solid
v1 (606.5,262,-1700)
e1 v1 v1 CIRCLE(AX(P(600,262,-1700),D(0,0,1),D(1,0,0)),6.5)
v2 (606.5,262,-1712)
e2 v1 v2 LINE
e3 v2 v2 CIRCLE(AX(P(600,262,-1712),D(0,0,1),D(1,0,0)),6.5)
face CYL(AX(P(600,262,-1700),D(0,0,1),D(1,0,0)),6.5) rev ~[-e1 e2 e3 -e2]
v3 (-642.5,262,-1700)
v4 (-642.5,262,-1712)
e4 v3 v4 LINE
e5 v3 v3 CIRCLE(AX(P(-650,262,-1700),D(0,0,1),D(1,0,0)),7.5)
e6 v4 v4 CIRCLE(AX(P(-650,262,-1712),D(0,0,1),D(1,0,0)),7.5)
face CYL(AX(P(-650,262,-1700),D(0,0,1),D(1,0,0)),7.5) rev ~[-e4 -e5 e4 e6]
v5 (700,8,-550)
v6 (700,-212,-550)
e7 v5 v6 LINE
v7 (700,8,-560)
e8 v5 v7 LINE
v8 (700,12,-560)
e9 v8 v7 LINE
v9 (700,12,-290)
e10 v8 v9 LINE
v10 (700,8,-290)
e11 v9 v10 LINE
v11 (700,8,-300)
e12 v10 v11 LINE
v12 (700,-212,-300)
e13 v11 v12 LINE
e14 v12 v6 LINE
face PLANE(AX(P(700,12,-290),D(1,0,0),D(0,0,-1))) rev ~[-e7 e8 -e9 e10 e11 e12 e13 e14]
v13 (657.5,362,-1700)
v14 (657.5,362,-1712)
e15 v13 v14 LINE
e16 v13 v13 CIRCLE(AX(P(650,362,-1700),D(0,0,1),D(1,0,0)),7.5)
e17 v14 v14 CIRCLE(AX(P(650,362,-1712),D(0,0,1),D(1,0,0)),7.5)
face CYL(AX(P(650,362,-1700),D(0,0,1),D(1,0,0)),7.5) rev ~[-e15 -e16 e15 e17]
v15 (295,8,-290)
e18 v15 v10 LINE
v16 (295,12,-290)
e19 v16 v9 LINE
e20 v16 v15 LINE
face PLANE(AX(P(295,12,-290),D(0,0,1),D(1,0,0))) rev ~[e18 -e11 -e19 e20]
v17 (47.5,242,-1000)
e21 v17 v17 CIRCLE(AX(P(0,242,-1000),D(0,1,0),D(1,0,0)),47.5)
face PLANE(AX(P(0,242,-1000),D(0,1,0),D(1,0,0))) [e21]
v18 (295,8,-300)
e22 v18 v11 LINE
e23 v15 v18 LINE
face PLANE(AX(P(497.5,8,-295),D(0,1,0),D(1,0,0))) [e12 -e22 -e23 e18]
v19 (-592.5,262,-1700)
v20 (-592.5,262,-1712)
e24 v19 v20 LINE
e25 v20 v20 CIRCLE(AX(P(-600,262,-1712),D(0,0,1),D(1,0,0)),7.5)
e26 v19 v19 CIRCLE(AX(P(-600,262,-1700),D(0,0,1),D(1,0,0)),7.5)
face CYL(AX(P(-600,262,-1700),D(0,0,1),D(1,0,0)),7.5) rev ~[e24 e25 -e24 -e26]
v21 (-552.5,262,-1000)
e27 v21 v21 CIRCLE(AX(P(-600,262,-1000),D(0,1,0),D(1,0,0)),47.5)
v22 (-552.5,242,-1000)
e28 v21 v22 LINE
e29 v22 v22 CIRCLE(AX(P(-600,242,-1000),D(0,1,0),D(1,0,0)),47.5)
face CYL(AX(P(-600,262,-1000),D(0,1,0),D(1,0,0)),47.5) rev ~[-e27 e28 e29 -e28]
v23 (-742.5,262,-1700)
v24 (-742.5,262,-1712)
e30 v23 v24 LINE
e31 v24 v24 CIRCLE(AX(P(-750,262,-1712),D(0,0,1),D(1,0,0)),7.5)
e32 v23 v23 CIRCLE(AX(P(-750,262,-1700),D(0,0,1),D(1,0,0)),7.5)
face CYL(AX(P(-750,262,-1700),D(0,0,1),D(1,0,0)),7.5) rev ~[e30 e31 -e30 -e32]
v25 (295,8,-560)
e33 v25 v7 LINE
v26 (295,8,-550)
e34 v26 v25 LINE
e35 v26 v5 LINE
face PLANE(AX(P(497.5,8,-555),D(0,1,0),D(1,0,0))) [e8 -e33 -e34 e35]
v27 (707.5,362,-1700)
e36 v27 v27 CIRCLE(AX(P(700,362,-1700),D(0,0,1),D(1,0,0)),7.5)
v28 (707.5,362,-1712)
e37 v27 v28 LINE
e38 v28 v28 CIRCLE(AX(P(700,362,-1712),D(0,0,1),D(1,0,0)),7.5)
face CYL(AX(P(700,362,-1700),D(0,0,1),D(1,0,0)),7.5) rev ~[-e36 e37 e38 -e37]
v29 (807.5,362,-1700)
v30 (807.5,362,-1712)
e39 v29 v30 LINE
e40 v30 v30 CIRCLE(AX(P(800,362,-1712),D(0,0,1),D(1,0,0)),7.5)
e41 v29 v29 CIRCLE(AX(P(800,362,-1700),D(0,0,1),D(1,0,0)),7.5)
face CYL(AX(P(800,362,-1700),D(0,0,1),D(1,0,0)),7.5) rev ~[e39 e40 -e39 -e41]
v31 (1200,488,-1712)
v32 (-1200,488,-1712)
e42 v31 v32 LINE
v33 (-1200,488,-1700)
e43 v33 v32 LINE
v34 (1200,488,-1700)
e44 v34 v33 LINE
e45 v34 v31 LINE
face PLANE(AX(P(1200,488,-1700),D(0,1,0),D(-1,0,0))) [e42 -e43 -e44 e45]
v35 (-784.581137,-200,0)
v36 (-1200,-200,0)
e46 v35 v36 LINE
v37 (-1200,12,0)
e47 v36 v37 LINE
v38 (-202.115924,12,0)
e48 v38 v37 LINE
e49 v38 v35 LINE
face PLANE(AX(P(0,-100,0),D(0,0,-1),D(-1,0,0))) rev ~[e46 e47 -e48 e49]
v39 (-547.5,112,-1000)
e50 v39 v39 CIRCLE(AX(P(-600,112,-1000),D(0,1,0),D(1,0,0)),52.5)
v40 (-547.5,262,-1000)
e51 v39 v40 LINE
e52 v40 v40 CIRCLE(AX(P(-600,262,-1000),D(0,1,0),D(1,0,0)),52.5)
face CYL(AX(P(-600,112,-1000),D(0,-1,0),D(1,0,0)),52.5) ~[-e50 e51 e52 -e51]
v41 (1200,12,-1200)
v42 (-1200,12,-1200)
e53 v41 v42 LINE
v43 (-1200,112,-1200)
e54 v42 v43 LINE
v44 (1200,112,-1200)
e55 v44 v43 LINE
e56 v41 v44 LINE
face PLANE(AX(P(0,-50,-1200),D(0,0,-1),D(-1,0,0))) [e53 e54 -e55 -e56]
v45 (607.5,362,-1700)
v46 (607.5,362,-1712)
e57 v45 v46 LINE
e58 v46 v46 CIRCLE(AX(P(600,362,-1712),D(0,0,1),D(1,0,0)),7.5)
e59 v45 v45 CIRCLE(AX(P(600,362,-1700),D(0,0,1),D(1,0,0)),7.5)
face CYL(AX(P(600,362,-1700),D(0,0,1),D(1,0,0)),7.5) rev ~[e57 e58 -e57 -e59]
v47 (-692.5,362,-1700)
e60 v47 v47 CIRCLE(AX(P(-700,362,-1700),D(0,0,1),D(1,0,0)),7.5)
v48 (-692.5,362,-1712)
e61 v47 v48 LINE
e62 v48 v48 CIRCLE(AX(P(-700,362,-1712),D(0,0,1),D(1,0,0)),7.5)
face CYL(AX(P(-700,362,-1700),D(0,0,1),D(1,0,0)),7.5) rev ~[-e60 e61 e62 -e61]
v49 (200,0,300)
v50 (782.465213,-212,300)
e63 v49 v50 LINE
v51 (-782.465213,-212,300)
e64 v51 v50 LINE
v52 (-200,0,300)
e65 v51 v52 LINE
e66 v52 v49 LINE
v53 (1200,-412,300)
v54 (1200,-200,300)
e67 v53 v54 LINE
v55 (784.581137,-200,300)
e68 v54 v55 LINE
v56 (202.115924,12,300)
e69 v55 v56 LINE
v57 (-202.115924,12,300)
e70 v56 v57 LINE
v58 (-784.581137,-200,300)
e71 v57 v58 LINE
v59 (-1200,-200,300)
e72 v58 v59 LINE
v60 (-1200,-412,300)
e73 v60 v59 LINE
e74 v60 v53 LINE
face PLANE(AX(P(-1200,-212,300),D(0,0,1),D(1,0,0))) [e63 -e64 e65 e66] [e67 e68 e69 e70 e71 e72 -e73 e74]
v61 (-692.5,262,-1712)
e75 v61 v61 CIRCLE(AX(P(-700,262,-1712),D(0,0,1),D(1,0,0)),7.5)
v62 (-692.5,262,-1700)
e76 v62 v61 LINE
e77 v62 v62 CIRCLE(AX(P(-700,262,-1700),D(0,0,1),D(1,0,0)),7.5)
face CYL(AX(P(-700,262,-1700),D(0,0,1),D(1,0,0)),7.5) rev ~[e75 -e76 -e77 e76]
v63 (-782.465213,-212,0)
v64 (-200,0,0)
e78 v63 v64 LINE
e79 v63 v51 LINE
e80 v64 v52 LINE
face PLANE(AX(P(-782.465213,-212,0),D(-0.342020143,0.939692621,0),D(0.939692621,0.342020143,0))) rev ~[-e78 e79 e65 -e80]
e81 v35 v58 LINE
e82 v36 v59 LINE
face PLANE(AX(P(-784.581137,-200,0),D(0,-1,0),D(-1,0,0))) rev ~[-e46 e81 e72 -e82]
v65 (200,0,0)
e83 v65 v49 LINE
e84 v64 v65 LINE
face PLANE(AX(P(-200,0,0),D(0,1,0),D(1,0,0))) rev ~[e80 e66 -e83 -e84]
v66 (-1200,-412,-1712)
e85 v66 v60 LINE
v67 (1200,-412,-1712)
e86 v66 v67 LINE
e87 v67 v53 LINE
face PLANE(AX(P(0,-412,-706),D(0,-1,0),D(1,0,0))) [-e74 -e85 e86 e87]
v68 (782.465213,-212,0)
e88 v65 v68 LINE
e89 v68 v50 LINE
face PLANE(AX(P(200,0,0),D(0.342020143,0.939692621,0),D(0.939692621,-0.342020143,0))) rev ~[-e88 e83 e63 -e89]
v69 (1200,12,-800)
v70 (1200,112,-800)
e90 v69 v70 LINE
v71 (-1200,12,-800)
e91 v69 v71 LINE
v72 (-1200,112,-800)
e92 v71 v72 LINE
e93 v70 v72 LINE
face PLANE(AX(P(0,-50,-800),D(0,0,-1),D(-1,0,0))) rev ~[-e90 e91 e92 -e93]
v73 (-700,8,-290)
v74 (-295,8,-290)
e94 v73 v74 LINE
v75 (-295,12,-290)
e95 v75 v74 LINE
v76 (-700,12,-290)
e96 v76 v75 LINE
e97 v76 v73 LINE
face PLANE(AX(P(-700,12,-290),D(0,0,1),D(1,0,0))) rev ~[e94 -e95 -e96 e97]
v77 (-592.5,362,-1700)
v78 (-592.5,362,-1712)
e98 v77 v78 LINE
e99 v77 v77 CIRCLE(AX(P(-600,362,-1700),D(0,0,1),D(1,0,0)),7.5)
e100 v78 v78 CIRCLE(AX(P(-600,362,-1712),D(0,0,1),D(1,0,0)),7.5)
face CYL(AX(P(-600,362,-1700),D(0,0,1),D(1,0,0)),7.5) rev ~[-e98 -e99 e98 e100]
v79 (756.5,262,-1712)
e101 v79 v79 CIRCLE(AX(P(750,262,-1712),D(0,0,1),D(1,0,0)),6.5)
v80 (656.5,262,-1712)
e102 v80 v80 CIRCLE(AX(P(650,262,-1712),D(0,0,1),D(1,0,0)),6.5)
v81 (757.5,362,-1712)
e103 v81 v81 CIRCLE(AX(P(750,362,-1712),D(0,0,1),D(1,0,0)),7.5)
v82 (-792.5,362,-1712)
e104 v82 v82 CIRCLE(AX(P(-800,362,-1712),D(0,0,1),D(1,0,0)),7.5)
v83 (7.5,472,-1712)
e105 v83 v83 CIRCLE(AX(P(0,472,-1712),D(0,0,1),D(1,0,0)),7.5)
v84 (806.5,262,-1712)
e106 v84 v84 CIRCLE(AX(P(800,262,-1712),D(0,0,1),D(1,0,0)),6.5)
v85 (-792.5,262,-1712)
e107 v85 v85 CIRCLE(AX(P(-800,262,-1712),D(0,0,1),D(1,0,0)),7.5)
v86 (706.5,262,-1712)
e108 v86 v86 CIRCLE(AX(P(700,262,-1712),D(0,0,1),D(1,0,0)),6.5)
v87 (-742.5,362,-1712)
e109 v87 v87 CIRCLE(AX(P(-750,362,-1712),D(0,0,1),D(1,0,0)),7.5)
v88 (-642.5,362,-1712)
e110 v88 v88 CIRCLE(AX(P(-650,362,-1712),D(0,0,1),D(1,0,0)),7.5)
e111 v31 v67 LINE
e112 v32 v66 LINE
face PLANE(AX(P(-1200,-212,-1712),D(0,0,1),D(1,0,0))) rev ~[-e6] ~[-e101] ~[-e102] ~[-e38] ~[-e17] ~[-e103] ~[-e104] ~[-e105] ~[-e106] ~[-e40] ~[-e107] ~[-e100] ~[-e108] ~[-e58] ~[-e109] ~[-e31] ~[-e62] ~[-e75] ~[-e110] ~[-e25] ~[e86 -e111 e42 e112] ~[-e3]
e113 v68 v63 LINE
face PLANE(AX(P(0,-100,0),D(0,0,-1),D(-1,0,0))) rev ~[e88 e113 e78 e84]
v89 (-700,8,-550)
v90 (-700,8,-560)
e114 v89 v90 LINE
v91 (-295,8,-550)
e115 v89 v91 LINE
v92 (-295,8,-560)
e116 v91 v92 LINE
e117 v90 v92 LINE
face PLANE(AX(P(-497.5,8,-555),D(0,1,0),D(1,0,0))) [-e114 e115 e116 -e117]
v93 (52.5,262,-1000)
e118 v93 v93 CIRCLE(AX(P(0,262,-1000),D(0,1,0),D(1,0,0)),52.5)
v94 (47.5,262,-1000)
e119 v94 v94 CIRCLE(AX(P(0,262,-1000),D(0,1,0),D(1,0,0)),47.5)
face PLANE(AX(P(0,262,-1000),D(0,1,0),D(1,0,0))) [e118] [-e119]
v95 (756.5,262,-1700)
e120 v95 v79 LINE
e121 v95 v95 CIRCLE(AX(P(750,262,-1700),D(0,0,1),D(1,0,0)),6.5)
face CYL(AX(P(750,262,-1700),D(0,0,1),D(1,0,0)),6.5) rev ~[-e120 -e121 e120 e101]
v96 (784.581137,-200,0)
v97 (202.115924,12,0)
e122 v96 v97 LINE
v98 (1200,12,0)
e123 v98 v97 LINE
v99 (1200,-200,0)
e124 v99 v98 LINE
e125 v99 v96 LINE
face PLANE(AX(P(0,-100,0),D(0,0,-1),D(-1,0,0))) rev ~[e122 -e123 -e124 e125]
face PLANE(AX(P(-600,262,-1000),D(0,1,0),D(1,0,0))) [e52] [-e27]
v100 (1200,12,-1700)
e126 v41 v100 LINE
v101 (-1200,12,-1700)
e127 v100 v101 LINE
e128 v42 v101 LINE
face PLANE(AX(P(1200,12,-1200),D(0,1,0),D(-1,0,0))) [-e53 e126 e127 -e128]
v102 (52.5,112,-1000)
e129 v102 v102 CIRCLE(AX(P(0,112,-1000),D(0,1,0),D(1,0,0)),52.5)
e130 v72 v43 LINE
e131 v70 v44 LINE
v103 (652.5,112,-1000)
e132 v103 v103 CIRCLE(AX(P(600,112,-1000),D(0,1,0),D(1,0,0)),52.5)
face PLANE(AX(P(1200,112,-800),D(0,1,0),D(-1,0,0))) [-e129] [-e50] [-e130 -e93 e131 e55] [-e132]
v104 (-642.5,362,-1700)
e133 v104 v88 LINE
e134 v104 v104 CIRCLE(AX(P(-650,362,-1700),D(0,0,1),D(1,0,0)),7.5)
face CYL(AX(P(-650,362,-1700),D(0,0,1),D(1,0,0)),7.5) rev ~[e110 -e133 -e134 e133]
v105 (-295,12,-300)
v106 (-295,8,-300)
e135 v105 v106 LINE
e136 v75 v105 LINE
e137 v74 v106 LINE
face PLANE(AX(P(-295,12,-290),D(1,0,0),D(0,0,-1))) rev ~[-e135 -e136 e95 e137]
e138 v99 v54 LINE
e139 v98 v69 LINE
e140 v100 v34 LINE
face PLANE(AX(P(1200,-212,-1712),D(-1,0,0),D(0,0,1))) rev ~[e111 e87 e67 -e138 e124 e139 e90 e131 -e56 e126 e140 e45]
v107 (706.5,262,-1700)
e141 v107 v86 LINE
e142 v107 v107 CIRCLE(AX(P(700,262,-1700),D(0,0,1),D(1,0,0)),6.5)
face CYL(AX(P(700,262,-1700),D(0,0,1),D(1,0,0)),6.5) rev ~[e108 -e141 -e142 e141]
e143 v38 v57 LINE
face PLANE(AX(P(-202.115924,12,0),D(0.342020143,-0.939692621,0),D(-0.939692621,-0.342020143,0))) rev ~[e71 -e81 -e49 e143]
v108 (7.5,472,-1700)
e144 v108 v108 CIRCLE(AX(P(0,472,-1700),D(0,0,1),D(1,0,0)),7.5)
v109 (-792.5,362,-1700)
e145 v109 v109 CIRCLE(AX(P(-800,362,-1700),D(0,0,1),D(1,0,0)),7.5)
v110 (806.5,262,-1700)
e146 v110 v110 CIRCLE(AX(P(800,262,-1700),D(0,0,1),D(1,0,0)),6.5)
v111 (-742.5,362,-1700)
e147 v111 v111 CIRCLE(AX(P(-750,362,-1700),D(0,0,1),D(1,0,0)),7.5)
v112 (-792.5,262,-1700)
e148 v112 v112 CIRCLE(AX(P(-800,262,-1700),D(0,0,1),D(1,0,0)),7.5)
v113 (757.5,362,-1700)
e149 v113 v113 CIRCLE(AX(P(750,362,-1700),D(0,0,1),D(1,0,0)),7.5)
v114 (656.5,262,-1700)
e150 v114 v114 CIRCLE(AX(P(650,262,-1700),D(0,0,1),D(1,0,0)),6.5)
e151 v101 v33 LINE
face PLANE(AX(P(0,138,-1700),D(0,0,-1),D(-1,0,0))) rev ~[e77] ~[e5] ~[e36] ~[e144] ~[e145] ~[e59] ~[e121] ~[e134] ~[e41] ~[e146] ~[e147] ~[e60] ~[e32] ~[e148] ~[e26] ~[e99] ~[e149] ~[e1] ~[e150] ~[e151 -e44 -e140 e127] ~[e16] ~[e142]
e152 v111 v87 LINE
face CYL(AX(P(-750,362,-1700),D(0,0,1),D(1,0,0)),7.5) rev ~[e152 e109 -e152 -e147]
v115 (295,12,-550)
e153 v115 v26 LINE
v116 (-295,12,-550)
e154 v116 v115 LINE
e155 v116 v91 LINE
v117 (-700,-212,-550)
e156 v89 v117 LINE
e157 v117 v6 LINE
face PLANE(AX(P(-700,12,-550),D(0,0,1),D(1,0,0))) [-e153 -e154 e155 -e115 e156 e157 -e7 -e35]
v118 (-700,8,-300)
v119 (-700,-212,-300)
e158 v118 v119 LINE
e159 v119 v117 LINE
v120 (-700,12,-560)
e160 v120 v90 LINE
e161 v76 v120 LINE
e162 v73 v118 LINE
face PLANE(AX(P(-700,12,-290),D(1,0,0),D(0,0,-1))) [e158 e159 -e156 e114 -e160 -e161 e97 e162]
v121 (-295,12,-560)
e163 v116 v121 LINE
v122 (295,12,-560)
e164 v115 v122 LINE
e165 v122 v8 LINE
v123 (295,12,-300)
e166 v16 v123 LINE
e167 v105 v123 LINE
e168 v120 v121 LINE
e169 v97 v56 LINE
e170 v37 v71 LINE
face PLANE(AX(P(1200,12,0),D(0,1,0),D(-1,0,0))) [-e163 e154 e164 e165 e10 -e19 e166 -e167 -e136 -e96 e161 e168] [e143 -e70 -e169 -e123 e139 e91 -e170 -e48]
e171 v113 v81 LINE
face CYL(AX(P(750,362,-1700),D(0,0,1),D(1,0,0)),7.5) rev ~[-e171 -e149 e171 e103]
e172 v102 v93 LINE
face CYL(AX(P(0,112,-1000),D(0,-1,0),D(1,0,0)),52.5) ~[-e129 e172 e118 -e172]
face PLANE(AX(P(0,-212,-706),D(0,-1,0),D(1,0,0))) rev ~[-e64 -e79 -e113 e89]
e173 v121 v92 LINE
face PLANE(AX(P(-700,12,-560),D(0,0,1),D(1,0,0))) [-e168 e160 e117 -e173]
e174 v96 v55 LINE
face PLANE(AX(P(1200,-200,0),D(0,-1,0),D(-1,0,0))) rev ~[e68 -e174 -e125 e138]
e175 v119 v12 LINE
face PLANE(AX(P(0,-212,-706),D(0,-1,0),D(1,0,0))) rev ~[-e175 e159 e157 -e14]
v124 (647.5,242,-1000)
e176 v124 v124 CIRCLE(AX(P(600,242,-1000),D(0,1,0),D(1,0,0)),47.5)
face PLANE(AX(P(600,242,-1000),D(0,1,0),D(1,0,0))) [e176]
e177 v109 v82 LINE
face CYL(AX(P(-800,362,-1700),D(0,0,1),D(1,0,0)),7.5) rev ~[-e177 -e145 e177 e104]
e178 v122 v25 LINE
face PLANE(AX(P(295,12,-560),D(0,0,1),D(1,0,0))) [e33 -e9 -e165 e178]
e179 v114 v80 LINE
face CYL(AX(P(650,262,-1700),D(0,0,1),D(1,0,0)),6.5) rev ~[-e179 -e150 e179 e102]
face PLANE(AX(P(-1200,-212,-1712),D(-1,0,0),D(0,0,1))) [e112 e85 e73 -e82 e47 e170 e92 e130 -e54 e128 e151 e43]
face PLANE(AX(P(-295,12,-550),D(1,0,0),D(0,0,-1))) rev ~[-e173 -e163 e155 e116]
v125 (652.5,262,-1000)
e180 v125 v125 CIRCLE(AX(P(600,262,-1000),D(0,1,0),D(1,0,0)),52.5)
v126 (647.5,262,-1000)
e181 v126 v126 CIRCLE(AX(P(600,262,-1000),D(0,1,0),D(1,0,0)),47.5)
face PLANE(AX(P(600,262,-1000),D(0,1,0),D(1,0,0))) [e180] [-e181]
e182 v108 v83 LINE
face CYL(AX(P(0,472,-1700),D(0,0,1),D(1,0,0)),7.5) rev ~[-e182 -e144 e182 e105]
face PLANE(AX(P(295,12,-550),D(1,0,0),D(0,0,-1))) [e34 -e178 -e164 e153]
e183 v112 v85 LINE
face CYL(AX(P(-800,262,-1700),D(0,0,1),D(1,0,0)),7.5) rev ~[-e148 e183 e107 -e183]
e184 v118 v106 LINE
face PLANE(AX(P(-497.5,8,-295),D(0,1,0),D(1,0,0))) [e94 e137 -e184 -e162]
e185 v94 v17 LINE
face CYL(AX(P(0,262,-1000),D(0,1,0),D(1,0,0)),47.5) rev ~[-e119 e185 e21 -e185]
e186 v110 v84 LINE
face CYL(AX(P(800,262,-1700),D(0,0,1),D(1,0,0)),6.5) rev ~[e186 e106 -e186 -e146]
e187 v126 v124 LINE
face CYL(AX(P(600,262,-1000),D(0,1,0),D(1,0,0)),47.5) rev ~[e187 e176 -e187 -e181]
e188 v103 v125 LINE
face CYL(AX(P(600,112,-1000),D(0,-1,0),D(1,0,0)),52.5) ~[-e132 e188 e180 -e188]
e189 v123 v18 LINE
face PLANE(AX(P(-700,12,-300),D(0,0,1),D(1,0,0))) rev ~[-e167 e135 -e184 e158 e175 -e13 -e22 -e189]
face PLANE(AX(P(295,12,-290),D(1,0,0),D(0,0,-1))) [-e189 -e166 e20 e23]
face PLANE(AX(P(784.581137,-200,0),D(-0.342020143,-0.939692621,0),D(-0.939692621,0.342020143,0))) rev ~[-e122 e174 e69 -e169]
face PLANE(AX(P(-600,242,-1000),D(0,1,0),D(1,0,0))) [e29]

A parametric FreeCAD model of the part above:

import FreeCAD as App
import Part
import Sketcher
Q = App.Units.Quantity

doc = App.newDocument("Part")
body = doc.addObject("PartDesign::Body", "Body")

sketch1 = body.newObject("Sketcher::SketchObject", "Sketch")
sketch1.AttachmentSupport = (doc.getObject("XY_Plane"), [""])
sketch1.MapMode = "FlatFace"
sketch1.addGeometry(Part.LineSegment(App.Vector(-200, 0, 0), App.Vector(200, 0, 0)), False)
sketch1.addGeometry(Part.LineSegment(App.Vector(200, 0, 0), App.Vector(782, -212, 0)), False)
sketch1.addGeometry(Part.LineSegment(App.Vector(782, -212, 0), App.Vector(1200, -212, 0)), False)
sketch1.addGeometry(Part.LineSegment(App.Vector(1200, -212, 0), App.Vector(1200, -200, 0)), False)
sketch1.addGeometry(Part.LineSegment(App.Vector(1200, -200, 0), App.Vector(785, -200, 0)), False)
sketch1.addGeometry(Part.LineSegment(App.Vector(785, -200, 0), App.Vector(202, 12, 0)), False)
sketch1.addGeometry(Part.LineSegment(App.Vector(202, 12, 0), App.Vector(-202, 12, 0)), False)
sketch1.addGeometry(Part.LineSegment(App.Vector(-202, 12, 0), App.Vector(-785, -200, 0)), False)
sketch1.addGeometry(Part.LineSegment(App.Vector(-785, -200, 0), App.Vector(-1200, -200, 0)), False)
sketch1.addGeometry(Part.LineSegment(App.Vector(-1200, -200, 0), App.Vector(-1200, -212, 0)), False)
sketch1.addGeometry(Part.LineSegment(App.Vector(-1200, -212, 0), App.Vector(-782, -212, 0)), False)
sketch1.addGeometry(Part.LineSegment(App.Vector(-782, -212, 0), App.Vector(-200, 0, 0)), False)
sketch1.addConstraint(Sketcher.Constraint("Coincident", 0, 2, 1, 1))
sketch1.addConstraint(Sketcher.Constraint("Coincident", 1, 2, 2, 1))
sketch1.addConstraint(Sketcher.Constraint("Coincident", 2, 2, 3, 1))
sketch1.addConstraint(Sketcher.Constraint("Coincident", 3, 2, 4, 1))
sketch1.addConstraint(Sketcher.Constraint("Coincident", 4, 2, 5, 1))
sketch1.addConstraint(Sketcher.Constraint("Coincident", 5, 2, 6, 1))
sketch1.addConstraint(Sketcher.Constraint("Coincident", 6, 2, 7, 1))
sketch1.addConstraint(Sketcher.Constraint("Coincident", 7, 2, 8, 1))
sketch1.addConstraint(Sketcher.Constraint("Coincident", 8, 2, 9, 1))
sketch1.addConstraint(Sketcher.Constraint("Coincident", 9, 2, 10, 1))
sketch1.addConstraint(Sketcher.Constraint("Coincident", 10, 2, 11, 1))
sketch1.addConstraint(Sketcher.Constraint("Coincident", 11, 2, 0, 1))
sketch1.addConstraint(Sketcher.Constraint("Horizontal", 0))
sketch1.addConstraint(Sketcher.Constraint("Horizontal", 2))
sketch1.addConstraint(Sketcher.Constraint("Vertical", 3))
sketch1.addConstraint(Sketcher.Constraint("Horizontal", 4))
sketch1.addConstraint(Sketcher.Constraint("Horizontal", 6))
sketch1.addConstraint(Sketcher.Constraint("Horizontal", 8))
sketch1.addConstraint(Sketcher.Constraint("Vertical", 9))
sketch1.addConstraint(Sketcher.Constraint("Horizontal", 10))
sketch1.addConstraint(Sketcher.Constraint("Symmetric", 0, 2, 11, 2, -1, 1))
sketch1.addConstraint(Sketcher.Constraint("Symmetric", 4, 2, 7, 2, -2))
sketch1.addConstraint(Sketcher.Constraint("Symmetric", 2, 2, 9, 2, -2))
sketch1.addConstraint(Sketcher.Constraint("Parallel", 1, 5))
sketch1.addConstraint(Sketcher.Constraint("Parallel", 7, 11))
sketch1.addConstraint(Sketcher.Constraint("Equal", 2, 10))
sketch1.addConstraint(Sketcher.Constraint("Equal", 1, 5))
sketch1.addConstraint(Sketcher.Constraint("DistanceX", 0, 1, 0, 2, Q("400 mm")))
sketch1.addConstraint(Sketcher.Constraint("DistanceY", 3, 1, 3, 2, Q("12 mm")))
sketch1.addConstraint(Sketcher.Constraint("Angle", 1, Q("-20 deg")))
sketch1.addConstraint(Sketcher.Constraint("DistanceY", 1, 2, -1, 1, Q("212 mm")))
sketch1.addConstraint(Sketcher.Constraint("DistanceX", -1, 1, 2, 2, Q("1200 mm")))
sketch1.addConstraint(Sketcher.Constraint("DistanceX", 4, 2, 4, 1, Q("415.418863 mm")))
pad1 = body.newObject("PartDesign::Pad", "Pad")
pad1.Profile = sketch1
pad1.Length = 300

sketch2 = body.newObject("Sketcher::SketchObject", "Sketch001")
sketch2.AttachmentSupport = (doc.getObject("XY_Plane"), [""])
sketch2.MapMode = "FlatFace"
sketch2.addGeometry(Part.LineSegment(App.Vector(1200, 12, 0), App.Vector(1200, -212, 0)), False)
sketch2.addGeometry(Part.LineSegment(App.Vector(1200, -212, 0), App.Vector(-1200, -212, 0)), False)
sketch2.addGeometry(Part.LineSegment(App.Vector(-1200, -212, 0), App.Vector(-1200, 12, 0)), False)
sketch2.addGeometry(Part.LineSegment(App.Vector(-1200, 12, 0), App.Vector(1200, 12, 0)), False)
sketch2.addConstraint(Sketcher.Constraint("Coincident", 0, 2, 1, 1))
sketch2.addConstraint(Sketcher.Constraint("Coincident", 1, 2, 2, 1))
sketch2.addConstraint(Sketcher.Constraint("Coincident", 2, 2, 3, 1))
sketch2.addConstraint(Sketcher.Constraint("Coincident", 3, 2, 0, 1))
sketch2.addConstraint(Sketcher.Constraint("Vertical", 0))
sketch2.addConstraint(Sketcher.Constraint("Horizontal", 1))
sketch2.addConstraint(Sketcher.Constraint("Vertical", 2))
sketch2.addConstraint(Sketcher.Constraint("Horizontal", 3))
sketch2.addConstraint(Sketcher.Constraint("DistanceX", 1, 2, 1, 1, Q("2400 mm")))
sketch2.addConstraint(Sketcher.Constraint("DistanceY", 0, 2, 0, 1, Q("224 mm")))
sketch2.addConstraint(Sketcher.Constraint("DistanceX", -1, 1, 0, 2, Q("1200 mm")))
sketch2.addConstraint(Sketcher.Constraint("DistanceY", 0, 2, -1, 1, Q("212 mm")))
pad2 = body.newObject("PartDesign::Pad", "Pad001")
pad2.Profile = sketch2
pad2.Length = 800
pad2.Reversed = True

sketch3 = body.newObject("Sketcher::SketchObject", "Sketch002")
sketch3.AttachmentSupport = (doc.getObject("XZ_Plane"), [""])
sketch3.MapMode = "FlatFace"
sketch3.AttachmentOffset = App.Placement(App.Vector(0, 0, -12), App.Rotation())
sketch3.addGeometry(Part.LineSegment(App.Vector(-700, -550, 0), App.Vector(-700, -300, 0)), False)
sketch3.addGeometry(Part.LineSegment(App.Vector(-700, -300, 0), App.Vector(700, -300, 0)), False)
sketch3.addGeometry(Part.LineSegment(App.Vector(700, -300, 0), App.Vector(700, -550, 0)), False)
sketch3.addGeometry(Part.LineSegment(App.Vector(700, -550, 0), App.Vector(-700, -550, 0)), False)
sketch3.addConstraint(Sketcher.Constraint("Coincident", 0, 2, 1, 1))
sketch3.addConstraint(Sketcher.Constraint("Coincident", 1, 2, 2, 1))
sketch3.addConstraint(Sketcher.Constraint("Coincident", 2, 2, 3, 1))
sketch3.addConstraint(Sketcher.Constraint("Coincident", 3, 2, 0, 1))
sketch3.addConstraint(Sketcher.Constraint("Vertical", 0))
sketch3.addConstraint(Sketcher.Constraint("Horizontal", 1))
sketch3.addConstraint(Sketcher.Constraint("Vertical", 2))
sketch3.addConstraint(Sketcher.Constraint("Horizontal", 3))
sketch3.addConstraint(Sketcher.Constraint("DistanceX", 1, 1, 1, 2, Q("1400 mm")))
sketch3.addConstraint(Sketcher.Constraint("DistanceY", 0, 1, 0, 2, Q("250 mm")))
sketch3.addConstraint(Sketcher.Constraint("DistanceX", 0, 2, -1, 1, Q("700 mm")))
sketch3.addConstraint(Sketcher.Constraint("DistanceY", 0, 2, -1, 1, Q("300 mm")))
pocket1 = body.newObject("PartDesign::Pocket", "Pocket")
pocket1.Profile = sketch3
pocket1.Type = "ThroughAll"
pocket1.Reversed = True

sketch4 = body.newObject("Sketcher::SketchObject", "Sketch003")
sketch4.AttachmentSupport = (doc.getObject("XY_Plane"), [""])
sketch4.MapMode = "FlatFace"
sketch4.AttachmentOffset = App.Placement(App.Vector(0, 0, -800), App.Rotation())
sketch4.addGeometry(Part.LineSegment(App.Vector(1200, 112, 0), App.Vector(1200, -212, 0)), False)
sketch4.addGeometry(Part.LineSegment(App.Vector(1200, -212, 0), App.Vector(-1200, -212, 0)), False)
sketch4.addGeometry(Part.LineSegment(App.Vector(-1200, -212, 0), App.Vector(-1200, 112, 0)), False)
sketch4.addGeometry(Part.LineSegment(App.Vector(-1200, 112, 0), App.Vector(1200, 112, 0)), False)
sketch4.addConstraint(Sketcher.Constraint("Coincident", 0, 2, 1, 1))
sketch4.addConstraint(Sketcher.Constraint("Coincident", 1, 2, 2, 1))
sketch4.addConstraint(Sketcher.Constraint("Coincident", 2, 2, 3, 1))
sketch4.addConstraint(Sketcher.Constraint("Coincident", 3, 2, 0, 1))
sketch4.addConstraint(Sketcher.Constraint("Vertical", 0))
sketch4.addConstraint(Sketcher.Constraint("Horizontal", 1))
sketch4.addConstraint(Sketcher.Constraint("Vertical", 2))
sketch4.addConstraint(Sketcher.Constraint("Horizontal", 3))
sketch4.addConstraint(Sketcher.Constraint("DistanceX", 1, 2, 1, 1, Q("2400 mm")))
sketch4.addConstraint(Sketcher.Constraint("DistanceY", 0, 2, 0, 1, Q("324 mm")))
sketch4.addConstraint(Sketcher.Constraint("DistanceX", -1, 1, 0, 2, Q("1200 mm")))
sketch4.addConstraint(Sketcher.Constraint("DistanceY", 0, 2, -1, 1, Q("212 mm")))
pad3 = body.newObject("PartDesign::Pad", "Pad002")
pad3.Profile = sketch4
pad3.Length = 400
pad3.Reversed = True

sketch5 = body.newObject("Sketcher::SketchObject", "Sketch004")
sketch5.AttachmentSupport = (doc.getObject("XY_Plane"), [""])
sketch5.MapMode = "FlatFace"
sketch5.AttachmentOffset = App.Placement(App.Vector(0, 0, -1200), App.Rotation())
sketch5.addGeometry(Part.LineSegment(App.Vector(1200, 12, 0), App.Vector(1200, -212, 0)), False)
sketch5.addGeometry(Part.LineSegment(App.Vector(1200, -212, 0), App.Vector(-1200, -212, 0)), False)
sketch5.addGeometry(Part.LineSegment(App.Vector(-1200, -212, 0), App.Vector(-1200, 12, 0)), False)
sketch5.addGeometry(Part.LineSegment(App.Vector(-1200, 12, 0), App.Vector(1200, 12, 0)), False)
sketch5.addConstraint(Sketcher.Constraint("Coincident", 0, 2, 1, 1))
sketch5.addConstraint(Sketcher.Constraint("Coincident", 1, 2, 2, 1))
sketch5.addConstraint(Sketcher.Constraint("Coincident", 2, 2, 3, 1))
sketch5.addConstraint(Sketcher.Constraint("Coincident", 3, 2, 0, 1))
sketch5.addConstraint(Sketcher.Constraint("Vertical", 0))
sketch5.addConstraint(Sketcher.Constraint("Horizontal", 1))
sketch5.addConstraint(Sketcher.Constraint("Vertical", 2))
sketch5.addConstraint(Sketcher.Constraint("Horizontal", 3))
sketch5.addConstraint(Sketcher.Constraint("DistanceX", 1, 2, 1, 1, Q("2400 mm")))
sketch5.addConstraint(Sketcher.Constraint("DistanceY", 0, 2, 0, 1, Q("224 mm")))
sketch5.addConstraint(Sketcher.Constraint("DistanceX", -1, 1, 0, 2, Q("1200 mm")))
sketch5.addConstraint(Sketcher.Constraint("DistanceY", 0, 2, -1, 1, Q("212 mm")))
pad4 = body.newObject("PartDesign::Pad", "Pad003")
pad4.Profile = sketch5
pad4.Length = 500
pad4.Reversed = True

sketch6 = body.newObject("Sketcher::SketchObject", "Sketch005")
sketch6.AttachmentSupport = (doc.getObject("XY_Plane"), [""])
sketch6.MapMode = "FlatFace"
sketch6.AttachmentOffset = App.Placement(App.Vector(0, 0, -1700), App.Rotation())
sketch6.addGeometry(Part.LineSegment(App.Vector(1200, 488, 0), App.Vector(1200, -212, 0)), False)
sketch6.addGeometry(Part.LineSegment(App.Vector(1200, -212, 0), App.Vector(-1200, -212, 0)), False)
sketch6.addGeometry(Part.LineSegment(App.Vector(-1200, -212, 0), App.Vector(-1200, 488, 0)), False)
sketch6.addGeometry(Part.LineSegment(App.Vector(-1200, 488, 0), App.Vector(1200, 488, 0)), False)
sketch6.addConstraint(Sketcher.Constraint("Coincident", 0, 2, 1, 1))
sketch6.addConstraint(Sketcher.Constraint("Coincident", 1, 2, 2, 1))
sketch6.addConstraint(Sketcher.Constraint("Coincident", 2, 2, 3, 1))
sketch6.addConstraint(Sketcher.Constraint("Coincident", 3, 2, 0, 1))
sketch6.addConstraint(Sketcher.Constraint("Vertical", 0))
sketch6.addConstraint(Sketcher.Constraint("Horizontal", 1))
sketch6.addConstraint(Sketcher.Constraint("Vertical", 2))
sketch6.addConstraint(Sketcher.Constraint("Horizontal", 3))
sketch6.addConstraint(Sketcher.Constraint("DistanceX", 1, 2, 1, 1, Q("2400 mm")))
sketch6.addConstraint(Sketcher.Constraint("DistanceY", 0, 2, 0, 1, Q("700 mm")))
sketch6.addConstraint(Sketcher.Constraint("DistanceX", -1, 1, 0, 2, Q("1200 mm")))
sketch6.addConstraint(Sketcher.Constraint("DistanceY", 0, 2, -1, 1, Q("212 mm")))
pad5 = body.newObject("PartDesign::Pad", "Pad004")
pad5.Profile = sketch6
pad5.Length = 12
pad5.Reversed = True

sketch7 = body.newObject("Sketcher::SketchObject", "Sketch006")
sketch7.AttachmentSupport = (doc.getObject("XZ_Plane"), [""])
sketch7.MapMode = "FlatFace"
sketch7.AttachmentOffset = App.Placement(App.Vector(0, 0, 212), App.Rotation())
sketch7.addGeometry(Part.LineSegment(App.Vector(-1200, 300, 0), App.Vector(-1200, -1712, 0)), False)
sketch7.addGeometry(Part.LineSegment(App.Vector(-1200, -1712, 0), App.Vector(1200, -1712, 0)), False)
sketch7.addGeometry(Part.LineSegment(App.Vector(1200, -1712, 0), App.Vector(1200, 300, 0)), False)
sketch7.addGeometry(Part.LineSegment(App.Vector(1200, 300, 0), App.Vector(-1200, 300, 0)), False)
sketch7.addConstraint(Sketcher.Constraint("Coincident", 0, 2, 1, 1))
sketch7.addConstraint(Sketcher.Constraint("Coincident", 1, 2, 2, 1))
sketch7.addConstraint(Sketcher.Constraint("Coincident", 2, 2, 3, 1))
sketch7.addConstraint(Sketcher.Constraint("Coincident", 3, 2, 0, 1))
sketch7.addConstraint(Sketcher.Constraint("Vertical", 0))
sketch7.addConstraint(Sketcher.Constraint("Horizontal", 1))
sketch7.addConstraint(Sketcher.Constraint("Vertical", 2))
sketch7.addConstraint(Sketcher.Constraint("Horizontal", 3))
sketch7.addConstraint(Sketcher.Constraint("DistanceX", 1, 1, 1, 2, Q("2400 mm")))
sketch7.addConstraint(Sketcher.Constraint("DistanceY", 0, 2, 0, 1, Q("2012 mm")))
sketch7.addConstraint(Sketcher.Constraint("DistanceX", 0, 2, -1, 1, Q("1200 mm")))
sketch7.addConstraint(Sketcher.Constraint("DistanceY", 0, 2, -1, 1, Q("1712 mm")))
pad6 = body.newObject("PartDesign::Pad", "Pad005")
pad6.Profile = sketch7
pad6.Length = 200

sketch8 = body.newObject("Sketcher::SketchObject", "Sketch007")
sketch8.AttachmentSupport = (doc.getObject("XZ_Plane"), [""])
sketch8.MapMode = "FlatFace"
sketch8.AttachmentOffset = App.Placement(App.Vector(0, 0, -112), App.Rotation())
sketch8.addGeometry(Part.Circle(App.Vector(-600, -1000, 0), App.Vector(0, 0, 1), 52), False)
sketch8.addGeometry(Part.Circle(App.Vector(600, -1000, 0), App.Vector(0, 0, 1), 52), False)
sketch8.addGeometry(Part.Circle(App.Vector(0, -1000, 0), App.Vector(0, 0, 1), 52), False)
sketch8.addConstraint(Sketcher.Constraint("Equal", 0, 1))
sketch8.addConstraint(Sketcher.Constraint("Equal", 1, 2))
sketch8.addConstraint(Sketcher.Constraint("Symmetric", 0, 3, 1, 3, -2))
sketch8.addConstraint(Sketcher.Constraint("PointOnObject", 2, 3, -2))
sketch8.addConstraint(Sketcher.Constraint("Horizontal", 1, 3, 2, 3))
sketch8.addConstraint(Sketcher.Constraint("Diameter", 0, Q("105 mm")))
sketch8.addConstraint(Sketcher.Constraint("DistanceX", 0, 3, -1, 1, Q("600 mm")))
sketch8.addConstraint(Sketcher.Constraint("DistanceY", 0, 3, -1, 1, Q("1000 mm")))
pad7 = body.newObject("PartDesign::Pad", "Pad006")
pad7.Profile = sketch8
pad7.Length = 150
pad7.Reversed = True

sketch9 = body.newObject("Sketcher::SketchObject", "Sketch008")
sketch9.AttachmentSupport = (doc.getObject("XY_Plane"), [""])
sketch9.MapMode = "FlatFace"
sketch9.AttachmentOffset = App.Placement(App.Vector(0, 0, -1700), App.Rotation())
sketch9.addGeometry(Part.Circle(App.Vector(-800, 262, 0), App.Vector(0, 0, 1), 8), False)
sketch9.addGeometry(Part.Circle(App.Vector(800, 362, 0), App.Vector(0, 0, 1), 8), False)
sketch9.addGeometry(Part.Circle(App.Vector(-750, 262, 0), App.Vector(0, 0, 1), 8), False)
sketch9.addGeometry(Part.Circle(App.Vector(-700, 262, 0), App.Vector(0, 0, 1), 8), False)
sketch9.addGeometry(Part.Circle(App.Vector(-650, 262, 0), App.Vector(0, 0, 1), 8), False)
sketch9.addGeometry(Part.Circle(App.Vector(-600, 262, 0), App.Vector(0, 0, 1), 8), False)
sketch9.addGeometry(Part.Circle(App.Vector(750, 362, 0), App.Vector(0, 0, 1), 8), False)
sketch9.addGeometry(Part.Circle(App.Vector(700, 362, 0), App.Vector(0, 0, 1), 8), False)
sketch9.addGeometry(Part.Circle(App.Vector(650, 362, 0), App.Vector(0, 0, 1), 8), False)
sketch9.addGeometry(Part.Circle(App.Vector(600, 362, 0), App.Vector(0, 0, 1), 8), False)
sketch9.addGeometry(Part.Circle(App.Vector(0, 472, 0), App.Vector(0, 0, 1), 8), False)
sketch9.addGeometry(Part.Circle(App.Vector(-800, 362, 0), App.Vector(0, 0, 1), 8), False)
sketch9.addGeometry(Part.Circle(App.Vector(-750, 362, 0), App.Vector(0, 0, 1), 8), False)
sketch9.addGeometry(Part.Circle(App.Vector(-700, 362, 0), App.Vector(0, 0, 1), 8), False)
sketch9.addGeometry(Part.Circle(App.Vector(-650, 362, 0), App.Vector(0, 0, 1), 8), False)
sketch9.addGeometry(Part.Circle(App.Vector(-600, 362, 0), App.Vector(0, 0, 1), 8), False)
sketch9.addGeometry(Part.Circle(App.Vector(800, 262, 0), App.Vector(0, 0, 1), 6), False)
sketch9.addGeometry(Part.Circle(App.Vector(750, 262, 0), App.Vector(0, 0, 1), 6), False)
sketch9.addGeometry(Part.Circle(App.Vector(700, 262, 0), App.Vector(0, 0, 1), 6), False)
sketch9.addGeometry(Part.Circle(App.Vector(650, 262, 0), App.Vector(0, 0, 1), 6), False)
sketch9.addGeometry(Part.Circle(App.Vector(600, 262, 0), App.Vector(0, 0, 1), 6), False)
sketch9.addConstraint(Sketcher.Constraint("Equal", 0, 1))
sketch9.addConstraint(Sketcher.Constraint("Equal", 1, 2))
sketch9.addConstraint(Sketcher.Constraint("Equal", 2, 3))
sketch9.addConstraint(Sketcher.Constraint("Equal", 3, 4))
sketch9.addConstraint(Sketcher.Constraint("Equal", 4, 5))
sketch9.addConstraint(Sketcher.Constraint("Equal", 5, 6))
sketch9.addConstraint(Sketcher.Constraint("Equal", 6, 7))
sketch9.addConstraint(Sketcher.Constraint("Equal", 7, 8))
sketch9.addConstraint(Sketcher.Constraint("Equal", 8, 9))
sketch9.addConstraint(Sketcher.Constraint("Equal", 9, 10))
sketch9.addConstraint(Sketcher.Constraint("Equal", 10, 11))
sketch9.addConstraint(Sketcher.Constraint("Equal", 11, 12))
sketch9.addConstraint(Sketcher.Constraint("Equal", 12, 13))
sketch9.addConstraint(Sketcher.Constraint("Equal", 13, 14))
sketch9.addConstraint(Sketcher.Constraint("Equal", 14, 15))
sketch9.addConstraint(Sketcher.Constraint("Equal", 16, 17))
sketch9.addConstraint(Sketcher.Constraint("Equal", 17, 18))
sketch9.addConstraint(Sketcher.Constraint("Equal", 18, 19))
sketch9.addConstraint(Sketcher.Constraint("Equal", 19, 20))
sketch9.addConstraint(Sketcher.Constraint("Symmetric", 1, 3, 11, 3, -2))
sketch9.addConstraint(Sketcher.Constraint("Symmetric", 6, 3, 12, 3, -2))
sketch9.addConstraint(Sketcher.Constraint("Symmetric", 7, 3, 13, 3, -2))
sketch9.addConstraint(Sketcher.Constraint("Symmetric", 8, 3, 14, 3, -2))
sketch9.addConstraint(Sketcher.Constraint("Symmetric", 9, 3, 15, 3, -2))
sketch9.addConstraint(Sketcher.Constraint("Symmetric", 0, 3, 16, 3, -2))
sketch9.addConstraint(Sketcher.Constraint("Symmetric", 2, 3, 17, 3, -2))
sketch9.addConstraint(Sketcher.Constraint("Symmetric", 3, 3, 18, 3, -2))
sketch9.addConstraint(Sketcher.Constraint("Symmetric", 4, 3, 19, 3, -2))
sketch9.addConstraint(Sketcher.Constraint("Symmetric", 5, 3, 20, 3, -2))
sketch9.addConstraint(Sketcher.Constraint("PointOnObject", 10, 3, -2))
sketch9.addConstraint(Sketcher.Constraint("Horizontal", 0, 3, 2, 3))
sketch9.addConstraint(Sketcher.Constraint("Horizontal", 2, 3, 3, 3))
sketch9.addConstraint(Sketcher.Constraint("Horizontal", 3, 3, 4, 3))
sketch9.addConstraint(Sketcher.Constraint("Horizontal", 4, 3, 5, 3))
sketch9.addConstraint(Sketcher.Constraint("Horizontal", 1, 3, 6, 3))
sketch9.addConstraint(Sketcher.Constraint("Horizontal", 6, 3, 7, 3))
sketch9.addConstraint(Sketcher.Constraint("Horizontal", 7, 3, 8, 3))
sketch9.addConstraint(Sketcher.Constraint("Horizontal", 8, 3, 9, 3))
sketch9.addConstraint(Sketcher.Constraint("Vertical", 0, 3, 11, 3))
sketch9.addConstraint(Sketcher.Constraint("Vertical", 2, 3, 12, 3))
sketch9.addConstraint(Sketcher.Constraint("Vertical", 3, 3, 13, 3))
sketch9.addConstraint(Sketcher.Constraint("Vertical", 4, 3, 14, 3))
sketch9.addConstraint(Sketcher.Constraint("Vertical", 5, 3, 15, 3))
sketch9.addConstraint(Sketcher.Constraint("Diameter", 0, Q("15 mm")))
sketch9.addConstraint(Sketcher.Constraint("Diameter", 16, Q("13 mm")))
sketch9.addConstraint(Sketcher.Constraint("DistanceX", 0, 3, -1, 1, Q("800 mm")))
sketch9.addConstraint(Sketcher.Constraint("DistanceY", -1, 1, 0, 3, Q("262 mm")))
sketch9.addConstraint(Sketcher.Constraint("DistanceY", -1, 1, 1, 3, Q("362 mm")))
sketch9.addConstraint(Sketcher.Constraint("DistanceX", 2, 3, -1, 1, Q("750 mm")))
sketch9.addConstraint(Sketcher.Constraint("DistanceX", 3, 3, -1, 1, Q("700 mm")))
sketch9.addConstraint(Sketcher.Constraint("DistanceX", 4, 3, -1, 1, Q("650 mm")))
sketch9.addConstraint(Sketcher.Constraint("DistanceX", 5, 3, -1, 1, Q("600 mm")))
sketch9.addConstraint(Sketcher.Constraint("DistanceY", -1, 1, 10, 3, Q("472 mm")))
pocket2 = body.newObject("PartDesign::Pocket", "Pocket001")
pocket2.Profile = sketch9
pocket2.Type = "ThroughAll"

sketch10 = body.newObject("Sketcher::SketchObject", "Sketch009")
sketch10.AttachmentSupport = (doc.getObject("XZ_Plane"), [""])
sketch10.MapMode = "FlatFace"
sketch10.AttachmentOffset = App.Placement(App.Vector(0, 0, -262), App.Rotation())
sketch10.addGeometry(Part.Circle(App.Vector(-600, -1000, 0), App.Vector(0, 0, 1), 48), False)
sketch10.addGeometry(Part.Circle(App.Vector(0, -1000, 0), App.Vector(0, 0, 1), 48), False)
sketch10.addGeometry(Part.Circle(App.Vector(600, -1000, 0), App.Vector(0, 0, 1), 48), False)
sketch10.addConstraint(Sketcher.Constraint("Equal", 0, 1))
sketch10.addConstraint(Sketcher.Constraint("Equal", 1, 2))
sketch10.addConstraint(Sketcher.Constraint("Symmetric", 0, 3, 2, 3, -2))
sketch10.addConstraint(Sketcher.Constraint("PointOnObject", 1, 3, -2))
sketch10.addConstraint(Sketcher.Constraint("Horizontal", 0, 3, 1, 3))
sketch10.addConstraint(Sketcher.Constraint("Diameter", 0, Q("95 mm")))
sketch10.addConstraint(Sketcher.Constraint("DistanceX", 0, 3, -1, 1, Q("600 mm")))
sketch10.addConstraint(Sketcher.Constraint("DistanceY", 0, 3, -1, 1, Q("1000 mm")))
pocket3 = body.newObject("PartDesign::Pocket", "Pocket002")
pocket3.Profile = sketch10
pocket3.Length = 20
pocket3.Reversed = True

sketch11 = body.newObject("Sketcher::SketchObject", "Sketch010")
sketch11.AttachmentSupport = (doc.getObject("XZ_Plane"), [""])
sketch11.MapMode = "FlatFace"
sketch11.AttachmentOffset = App.Placement(App.Vector(0, 0, -12), App.Rotation())
sketch11.addGeometry(Part.LineSegment(App.Vector(-700, -560, 0), App.Vector(-700, -550, 0)), False)
sketch11.addGeometry(Part.LineSegment(App.Vector(-700, -550, 0), App.Vector(-295, -550, 0)), False)
sketch11.addGeometry(Part.LineSegment(App.Vector(-295, -550, 0), App.Vector(-295, -560, 0)), False)
sketch11.addGeometry(Part.LineSegment(App.Vector(-295, -560, 0), App.Vector(-700, -560, 0)), False)
sketch11.addGeometry(Part.LineSegment(App.Vector(-700, -300, 0), App.Vector(-700, -290, 0)), False)
sketch11.addGeometry(Part.LineSegment(App.Vector(-700, -290, 0), App.Vector(-295, -290, 0)), False)
sketch11.addGeometry(Part.LineSegment(App.Vector(-295, -290, 0), App.Vector(-295, -300, 0)), False)
sketch11.addGeometry(Part.LineSegment(App.Vector(-295, -300, 0), App.Vector(-700, -300, 0)), False)
sketch11.addGeometry(Part.LineSegment(App.Vector(295, -560, 0), App.Vector(295, -550, 0)), False)
sketch11.addGeometry(Part.LineSegment(App.Vector(295, -550, 0), App.Vector(700, -550, 0)), False)
sketch11.addGeometry(Part.LineSegment(App.Vector(700, -550, 0), App.Vector(700, -560, 0)), False)
sketch11.addGeometry(Part.LineSegment(App.Vector(700, -560, 0), App.Vector(295, -560, 0)), False)
sketch11.addGeometry(Part.LineSegment(App.Vector(295, -300, 0), App.Vector(295, -290, 0)), False)
sketch11.addGeometry(Part.LineSegment(App.Vector(295, -290, 0), App.Vector(700, -290, 0)), False)
sketch11.addGeometry(Part.LineSegment(App.Vector(700, -290, 0), App.Vector(700, -300, 0)), False)
sketch11.addGeometry(Part.LineSegment(App.Vector(700, -300, 0), App.Vector(295, -300, 0)), False)
sketch11.addConstraint(Sketcher.Constraint("Coincident", 0, 2, 1, 1))
sketch11.addConstraint(Sketcher.Constraint("Coincident", 1, 2, 2, 1))
sketch11.addConstraint(Sketcher.Constraint("Coincident", 2, 2, 3, 1))
sketch11.addConstraint(Sketcher.Constraint("Coincident", 3, 2, 0, 1))
sketch11.addConstraint(Sketcher.Constraint("Coincident", 4, 2, 5, 1))
sketch11.addConstraint(Sketcher.Constraint("Coincident", 5, 2, 6, 1))
sketch11.addConstraint(Sketcher.Constraint("Coincident", 6, 2, 7, 1))
sketch11.addConstraint(Sketcher.Constraint("Coincident", 7, 2, 4, 1))
sketch11.addConstraint(Sketcher.Constraint("Coincident", 8, 2, 9, 1))
sketch11.addConstraint(Sketcher.Constraint("Coincident", 9, 2, 10, 1))
sketch11.addConstraint(Sketcher.Constraint("Coincident", 10, 2, 11, 1))
sketch11.addConstraint(Sketcher.Constraint("Coincident", 11, 2, 8, 1))
sketch11.addConstraint(Sketcher.Constraint("Coincident", 12, 2, 13, 1))
sketch11.addConstraint(Sketcher.Constraint("Coincident", 13, 2, 14, 1))
sketch11.addConstraint(Sketcher.Constraint("Coincident", 14, 2, 15, 1))
sketch11.addConstraint(Sketcher.Constraint("Coincident", 15, 2, 12, 1))
sketch11.addConstraint(Sketcher.Constraint("Vertical", 0))
sketch11.addConstraint(Sketcher.Constraint("Horizontal", 1))
sketch11.addConstraint(Sketcher.Constraint("Vertical", 2))
sketch11.addConstraint(Sketcher.Constraint("Horizontal", 3))
sketch11.addConstraint(Sketcher.Constraint("Vertical", 4))
sketch11.addConstraint(Sketcher.Constraint("Horizontal", 5))
sketch11.addConstraint(Sketcher.Constraint("Vertical", 6))
sketch11.addConstraint(Sketcher.Constraint("Horizontal", 7))
sketch11.addConstraint(Sketcher.Constraint("Vertical", 8))
sketch11.addConstraint(Sketcher.Constraint("Horizontal", 9))
sketch11.addConstraint(Sketcher.Constraint("Vertical", 10))
sketch11.addConstraint(Sketcher.Constraint("Horizontal", 11))
sketch11.addConstraint(Sketcher.Constraint("Vertical", 12))
sketch11.addConstraint(Sketcher.Constraint("Horizontal", 13))
sketch11.addConstraint(Sketcher.Constraint("Vertical", 14))
sketch11.addConstraint(Sketcher.Constraint("Horizontal", 15))
sketch11.addConstraint(Sketcher.Constraint("Symmetric", 1, 2, 8, 2, -2))
sketch11.addConstraint(Sketcher.Constraint("Symmetric", 3, 2, 10, 2, -2))
sketch11.addConstraint(Sketcher.Constraint("Symmetric", 5, 2, 12, 2, -2))
sketch11.addConstraint(Sketcher.Constraint("Symmetric", 7, 2, 14, 2, -2))
sketch11.addConstraint(Sketcher.Constraint("Vertical", 3, 2, 4, 2))
sketch11.addConstraint(Sketcher.Constraint("Vertical", 2, 2, 5, 2))
sketch11.addConstraint(Sketcher.Constraint("Equal", 2, 4))
sketch11.addConstraint(Sketcher.Constraint("DistanceX", 1, 1, 1, 2, Q("405 mm")))
sketch11.addConstraint(Sketcher.Constraint("DistanceY", 0, 1, 0, 2, Q("10 mm")))
sketch11.addConstraint(Sketcher.Constraint("DistanceX", 0, 2, -1, 1, Q("700 mm")))
sketch11.addConstraint(Sketcher.Constraint("DistanceY", 0, 2, -1, 1, Q("550 mm")))
sketch11.addConstraint(Sketcher.Constraint("DistanceY", 4, 2, -1, 1, Q("290 mm")))
pocket4 = body.newObject("PartDesign::Pocket", "Pocket003")
pocket4.Profile = sketch11
pocket4.Length = 4
pocket4.Reversed = True

doc.recompute()
